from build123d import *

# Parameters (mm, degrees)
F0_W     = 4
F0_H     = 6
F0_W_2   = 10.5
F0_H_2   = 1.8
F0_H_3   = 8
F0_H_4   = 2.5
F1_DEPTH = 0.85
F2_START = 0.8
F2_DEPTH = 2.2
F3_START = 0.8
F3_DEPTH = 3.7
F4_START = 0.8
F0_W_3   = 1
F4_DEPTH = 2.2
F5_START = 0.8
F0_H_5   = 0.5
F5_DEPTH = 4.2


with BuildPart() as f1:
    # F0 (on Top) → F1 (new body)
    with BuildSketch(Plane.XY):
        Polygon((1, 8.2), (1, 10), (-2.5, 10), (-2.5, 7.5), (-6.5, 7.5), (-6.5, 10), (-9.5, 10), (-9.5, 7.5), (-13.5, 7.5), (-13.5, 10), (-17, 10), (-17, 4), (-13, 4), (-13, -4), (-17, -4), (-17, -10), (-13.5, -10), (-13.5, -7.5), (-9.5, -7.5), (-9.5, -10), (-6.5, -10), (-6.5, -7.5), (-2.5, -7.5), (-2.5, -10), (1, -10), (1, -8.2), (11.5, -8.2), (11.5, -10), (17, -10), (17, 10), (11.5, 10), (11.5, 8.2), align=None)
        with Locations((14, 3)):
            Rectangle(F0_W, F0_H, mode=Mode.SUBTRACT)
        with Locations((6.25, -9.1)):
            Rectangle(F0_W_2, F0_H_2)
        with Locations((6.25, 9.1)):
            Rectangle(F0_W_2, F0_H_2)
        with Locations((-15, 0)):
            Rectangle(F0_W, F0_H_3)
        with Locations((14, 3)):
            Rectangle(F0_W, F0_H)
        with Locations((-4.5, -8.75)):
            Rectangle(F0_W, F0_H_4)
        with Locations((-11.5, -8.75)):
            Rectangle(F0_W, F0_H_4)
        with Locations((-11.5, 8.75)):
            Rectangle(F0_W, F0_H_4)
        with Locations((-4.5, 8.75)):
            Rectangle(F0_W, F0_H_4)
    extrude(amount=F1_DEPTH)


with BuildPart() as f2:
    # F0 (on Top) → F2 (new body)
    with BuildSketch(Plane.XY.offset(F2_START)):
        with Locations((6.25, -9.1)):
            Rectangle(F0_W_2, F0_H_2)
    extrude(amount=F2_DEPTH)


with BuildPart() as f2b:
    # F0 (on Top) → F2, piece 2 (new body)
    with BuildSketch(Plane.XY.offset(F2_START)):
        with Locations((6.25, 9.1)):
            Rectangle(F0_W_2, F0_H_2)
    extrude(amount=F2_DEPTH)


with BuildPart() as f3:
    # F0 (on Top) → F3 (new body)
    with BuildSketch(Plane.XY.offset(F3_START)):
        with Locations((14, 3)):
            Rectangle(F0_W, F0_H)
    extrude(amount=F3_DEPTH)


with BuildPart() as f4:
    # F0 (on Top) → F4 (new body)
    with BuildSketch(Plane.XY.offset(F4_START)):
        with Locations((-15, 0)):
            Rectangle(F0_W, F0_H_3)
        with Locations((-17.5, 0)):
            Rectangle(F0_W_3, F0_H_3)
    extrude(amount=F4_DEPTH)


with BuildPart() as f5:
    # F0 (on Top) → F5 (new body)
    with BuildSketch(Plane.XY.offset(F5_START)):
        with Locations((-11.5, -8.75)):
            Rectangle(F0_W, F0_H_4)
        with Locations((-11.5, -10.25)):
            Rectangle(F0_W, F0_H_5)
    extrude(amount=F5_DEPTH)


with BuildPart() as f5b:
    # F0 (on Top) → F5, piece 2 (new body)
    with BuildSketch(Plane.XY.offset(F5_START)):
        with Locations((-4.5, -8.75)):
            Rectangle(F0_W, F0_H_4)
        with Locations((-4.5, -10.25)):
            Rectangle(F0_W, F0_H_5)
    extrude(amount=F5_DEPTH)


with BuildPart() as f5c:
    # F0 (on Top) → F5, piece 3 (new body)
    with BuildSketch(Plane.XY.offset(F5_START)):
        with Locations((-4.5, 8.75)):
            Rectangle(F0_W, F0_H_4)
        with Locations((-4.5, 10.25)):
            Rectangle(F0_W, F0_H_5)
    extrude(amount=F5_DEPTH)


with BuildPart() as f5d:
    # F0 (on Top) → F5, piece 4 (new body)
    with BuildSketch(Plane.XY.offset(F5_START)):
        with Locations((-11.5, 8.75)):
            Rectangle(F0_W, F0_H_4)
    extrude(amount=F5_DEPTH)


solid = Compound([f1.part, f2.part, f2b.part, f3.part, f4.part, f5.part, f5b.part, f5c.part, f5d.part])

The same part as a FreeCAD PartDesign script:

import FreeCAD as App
import Part
import Sketcher
Q = App.Units.Quantity


def add_polygon(sketch, points):
    """Adds a closed chain of lines whose ends are joined by coincident constraints."""
    first, n = sketch.GeometryCount, len(points)
    for a, b in zip(points, points[1:] + points[:1]):
        sketch.addGeometry(Part.LineSegment(App.Vector(*a, 0), App.Vector(*b, 0)), False)
    for i in range(n):
        sketch.addConstraint(Sketcher.Constraint("Coincident", first + i, 2, first + (i + 1) % n, 1))

doc = App.newDocument("Part")
params = doc.addObject("Spreadsheet::Sheet", "Params")
for row, (alias, value) in enumerate([
    ("sketch1_width", "34 mm"),
    ("sketch1_height", "20 mm"),
    ("pad1_length", "0.85 mm"),
    ("sketch2_width", "10.5 mm"),
    ("sketch2_height", "1.8 mm"),
    ("pad2_length", "2.2 mm"),
    ("sketch3_width", "10.5 mm"),
    ("sketch3_height", "1.8 mm"),
    ("pad3_length", "2.2 mm"),
    ("sketch4_width", "4 mm"),
    ("sketch4_height", "6 mm"),
    ("pad4_length", "3.7 mm"),
    ("sketch5_width", "5 mm"),
    ("sketch5_height", "8 mm"),
    ("pad5_length", "2.2 mm"),
    ("sketch6_width", "4 mm"),
    ("sketch6_height", "3 mm"),
    ("pad6_length", "4.2 mm"),
    ("sketch7_width", "4 mm"),
    ("sketch7_height", "3 mm"),
    ("pad7_length", "4.2 mm"),
    ("sketch8_width", "4 mm"),
    ("sketch8_height", "3 mm"),
    ("pad8_length", "4.2 mm"),
    ("sketch9_width", "4 mm"),
    ("sketch9_height", "2.5 mm"),
    ("pad9_length", "4.2 mm"),
], start=1):
    params.set(f"A{row}", alias)
    params.set(f"B{row}", "=" + value)
    params.setAlias(f"B{row}", alias)

body = doc.addObject("PartDesign::Body", "Body")

sketch1 = doc.addObject("Sketcher::SketchObject", "Sketch")
body.addObject(sketch1)
sketch1.AttachmentSupport = (doc.XY_Plane, [""])
sketch1.MapMode = "FlatFace"
add_polygon(sketch1, [(-17, 10), (-17, -10), (17, -10), (17, 10)])
sketch1.addConstraint(Sketcher.Constraint("Vertical", 0))
sketch1.addConstraint(Sketcher.Constraint("Horizontal", 1))
sketch1.addConstraint(Sketcher.Constraint("Vertical", 2))
sketch1.addConstraint(Sketcher.Constraint("Horizontal", 3))
sketch1.addConstraint(Sketcher.Constraint("Symmetric", 0, 2, 2, 2, -1, 1))
sketch1.addConstraint(Sketcher.Constraint("DistanceX", 1, 1, 1, 2, Q("34 mm")))
sketch1.addConstraint(Sketcher.Constraint("DistanceY", 0, 2, 0, 1, Q("20 mm")))
sketch1.setExpression("Constraints[9]", "Params.sketch1_width")
sketch1.setExpression("Constraints[10]", "Params.sketch1_height")
pad1 = doc.addObject("PartDesign::Pad", "Pad")
body.addObject(pad1)
pad1.Profile = sketch1
pad1.setExpression("Length", "Params.pad1_length")
body2 = doc.addObject("PartDesign::Body", "Body001")

sketch2 = doc.addObject("Sketcher::SketchObject", "Sketch001")
body2.addObject(sketch2)
sketch2.AttachmentSupport = (doc.getObject("XY_Plane001"), [""])
sketch2.MapMode = "FlatFace"
sketch2.AttachmentOffset = App.Placement(App.Vector(0, 0, 0.8), App.Rotation())
add_polygon(sketch2, [(1, -8.2), (1, -10), (11.5, -10), (11.5, -8.2)])
sketch2.addConstraint(Sketcher.Constraint("Vertical", 0))
sketch2.addConstraint(Sketcher.Constraint("Horizontal", 1))
sketch2.addConstraint(Sketcher.Constraint("Vertical", 2))
sketch2.addConstraint(Sketcher.Constraint("Horizontal", 3))
sketch2.addConstraint(Sketcher.Constraint("DistanceX", 1, 1, 1, 2, Q("10.5 mm")))
sketch2.addConstraint(Sketcher.Constraint("DistanceY", 0, 2, 0, 1, Q("1.8 mm")))
sketch2.addConstraint(Sketcher.Constraint("DistanceX", -1, 1, 0, 2, Q("1 mm")))
sketch2.addConstraint(Sketcher.Constraint("DistanceY", 0, 2, -1, 1, Q("10 mm")))
sketch2.setExpression("Constraints[8]", "Params.sketch2_width")
sketch2.setExpression("Constraints[9]", "Params.sketch2_height")
pad2 = doc.addObject("PartDesign::Pad", "Pad001")
body2.addObject(pad2)
pad2.Profile = sketch2
pad2.setExpression("Length", "Params.pad2_length")
body3 = doc.addObject("PartDesign::Body", "Body002")

sketch3 = doc.addObject("Sketcher::SketchObject", "Sketch002")
body3.addObject(sketch3)
sketch3.AttachmentSupport = (doc.getObject("XY_Plane002"), [""])
sketch3.MapMode = "FlatFace"
sketch3.AttachmentOffset = App.Placement(App.Vector(0, 0, 0.8), App.Rotation())
add_polygon(sketch3, [(1, 10), (1, 8.2), (11.5, 8.2), (11.5, 10)])
sketch3.addConstraint(Sketcher.Constraint("Vertical", 0))
sketch3.addConstraint(Sketcher.Constraint("Horizontal", 1))
sketch3.addConstraint(Sketcher.Constraint("Vertical", 2))
sketch3.addConstraint(Sketcher.Constraint("Horizontal", 3))
sketch3.addConstraint(Sketcher.Constraint("DistanceX", 1, 1, 1, 2, Q("10.5 mm")))
sketch3.addConstraint(Sketcher.Constraint("DistanceY", 0, 2, 0, 1, Q("1.8 mm")))
sketch3.addConstraint(Sketcher.Constraint("DistanceX", -1, 1, 0, 2, Q("1 mm")))
sketch3.addConstraint(Sketcher.Constraint("DistanceY", -1, 1, 2, 2, Q("10 mm")))
sketch3.setExpression("Constraints[8]", "Params.sketch3_width")
sketch3.setExpression("Constraints[9]", "Params.sketch3_height")
pad3 = doc.addObject("PartDesign::Pad", "Pad002")
body3.addObject(pad3)
pad3.Profile = sketch3
pad3.setExpression("Length", "Params.pad3_length")
body4 = doc.addObject("PartDesign::Body", "Body003")

sketch4 = doc.addObject("Sketcher::SketchObject", "Sketch003")
body4.addObject(sketch4)
sketch4.AttachmentSupport = (doc.getObject("XY_Plane003"), [""])
sketch4.MapMode = "FlatFace"
sketch4.AttachmentOffset = App.Placement(App.Vector(0, 0, 0.8), App.Rotation())
add_polygon(sketch4, [(12, 6), (12, 0), (16, 0), (16, 6)])
sketch4.addConstraint(Sketcher.Constraint("Vertical", 0))
sketch4.addConstraint(Sketcher.Constraint("Horizontal", 1))
sketch4.addConstraint(Sketcher.Constraint("Vertical", 2))
sketch4.addConstraint(Sketcher.Constraint("Horizontal", 3))
sketch4.addConstraint(Sketcher.Constraint("PointOnObject", 0, 2, -1))
sketch4.addConstraint(Sketcher.Constraint("DistanceX", 1, 1, 1, 2, Q("4 mm")))
sketch4.addConstraint(Sketcher.Constraint("DistanceY", 0, 2, 0, 1, Q("6 mm")))
sketch4.addConstraint(Sketcher.Constraint("DistanceX", -1, 1, 0, 2, Q("12 mm")))
sketch4.setExpression("Constraints[9]", "Params.sketch4_width")
sketch4.setExpression("Constraints[10]", "Params.sketch4_height")
pad4 = doc.addObject("PartDesign::Pad", "Pad003")
body4.addObject(pad4)
pad4.Profile = sketch4
pad4.setExpression("Length", "Params.pad4_length")
body5 = doc.addObject("PartDesign::Body", "Body004")

sketch5 = doc.addObject("Sketcher::SketchObject", "Sketch004")
body5.addObject(sketch5)
sketch5.AttachmentSupport = (doc.getObject("XY_Plane004"), [""])
sketch5.MapMode = "FlatFace"
sketch5.AttachmentOffset = App.Placement(App.Vector(0, 0, 0.8), App.Rotation())
add_polygon(sketch5, [(-13, -4), (-13, 4), (-18, 4), (-18, -4)])
sketch5.addConstraint(Sketcher.Constraint("Vertical", 0))
sketch5.addConstraint(Sketcher.Constraint("Horizontal", 1))
sketch5.addConstraint(Sketcher.Constraint("Vertical", 2))
sketch5.addConstraint(Sketcher.Constraint("Horizontal", 3))
sketch5.addConstraint(Sketcher.Constraint("DistanceX", 1, 2, 1, 1, Q("5 mm")))
sketch5.addConstraint(Sketcher.Constraint("DistanceY", 0, 1, 0, 2, Q("8 mm")))
sketch5.addConstraint(Sketcher.Constraint("DistanceX", 0, 2, -1, 1, Q("13 mm")))
sketch5.addConstraint(Sketcher.Constraint("DistanceY", -1, 1, 0, 2, Q("4 mm")))
sketch5.setExpression("Constraints[8]", "Params.sketch5_width")
sketch5.setExpression("Constraints[9]", "Params.sketch5_height")
pad5 = doc.addObject("PartDesign::Pad", "Pad004")
body5.addObject(pad5)
pad5.Profile = sketch5
pad5.setExpression("Length", "Params.pad5_length")
body6 = doc.addObject("PartDesign::Body", "Body005")

sketch6 = doc.addObject("Sketcher::SketchObject", "Sketch005")
body6.addObject(sketch6)
sketch6.AttachmentSupport = (doc.getObject("XY_Plane005"), [""])
sketch6.MapMode = "FlatFace"
sketch6.AttachmentOffset = App.Placement(App.Vector(0, 0, 0.8), App.Rotation())
add_polygon(sketch6, [(-13.5, -7.5), (-13.5, -10.5), (-9.5, -10.5), (-9.5, -7.5)])
sketch6.addConstraint(Sketcher.Constraint("Vertical", 0))
sketch6.addConstraint(Sketcher.Constraint("Horizontal", 1))
sketch6.addConstraint(Sketcher.Constraint("Vertical", 2))
sketch6.addConstraint(Sketcher.Constraint("Horizontal", 3))
sketch6.addConstraint(Sketcher.Constraint("DistanceX", 1, 1, 1, 2, Q("4 mm")))
sketch6.addConstraint(Sketcher.Constraint("DistanceY", 0, 2, 0, 1, Q("3 mm")))
sketch6.addConstraint(Sketcher.Constraint("DistanceX", 0, 2, -1, 1, Q("13.5 mm")))
sketch6.addConstraint(Sketcher.Constraint("DistanceY", 0, 2, -1, 1, Q("10.5 mm")))
sketch6.setExpression("Constraints[8]", "Params.sketch6_width")
sketch6.setExpression("Constraints[9]", "Params.sketch6_height")
pad6 = doc.addObject("PartDesign::Pad", "Pad005")
body6.addObject(pad6)
pad6.Profile = sketch6
pad6.setExpression("Length", "Params.pad6_length")
body7 = doc.addObject("PartDesign::Body", "Body006")

sketch7 = doc.addObject("Sketcher::SketchObject", "Sketch006")
body7.addObject(sketch7)
sketch7.AttachmentSupport = (doc.getObject("XY_Plane006"), [""])
sketch7.MapMode = "FlatFace"
sketch7.AttachmentOffset = App.Placement(App.Vector(0, 0, 0.8), App.Rotation())
add_polygon(sketch7, [(-6.5, -7.5), (-6.5, -10.5), (-2.5, -10.5), (-2.5, -7.5)])
sketch7.addConstraint(Sketcher.Constraint("Vertical", 0))
sketch7.addConstraint(Sketcher.Constraint("Horizontal", 1))
sketch7.addConstraint(Sketcher.Constraint("Vertical", 2))
sketch7.addConstraint(Sketcher.Constraint("Horizontal", 3))
sketch7.addConstraint(Sketcher.Constraint("DistanceX", 1, 1, 1, 2, Q("4 mm")))
sketch7.addConstraint(Sketcher.Constraint("DistanceY", 0, 2, 0, 1, Q("3 mm")))
sketch7.addConstraint(Sketcher.Constraint("DistanceX", 0, 2, -1, 1, Q("6.5 mm")))
sketch7.addConstraint(Sketcher.Constraint("DistanceY", 0, 2, -1, 1, Q("10.5 mm")))
sketch7.setExpression("Constraints[8]", "Params.sketch7_width")
sketch7.setExpression("Constraints[9]", "Params.sketch7_height")
pad7 = doc.addObject("PartDesign::Pad", "Pad006")
body7.addObject(pad7)
pad7.Profile = sketch7
pad7.setExpression("Length", "Params.pad7_length")
body8 = doc.addObject("PartDesign::Body", "Body007")

sketch8 = doc.addObject("Sketcher::SketchObject", "Sketch007")
body8.addObject(sketch8)
sketch8.AttachmentSupport = (doc.getObject("XY_Plane007"), [""])
sketch8.MapMode = "FlatFace"
sketch8.AttachmentOffset = App.Placement(App.Vector(0, 0, 0.8), App.Rotation())
add_polygon(sketch8, [(-6.5, 7.5), (-2.5, 7.5), (-2.5, 10.5), (-6.5, 10.5)])
sketch8.addConstraint(Sketcher.Constraint("Horizontal", 0))
sketch8.addConstraint(Sketcher.Constraint("Vertical", 1))
sketch8.addConstraint(Sketcher.Constraint("Horizontal", 2))
sketch8.addConstraint(Sketcher.Constraint("Vertical", 3))
sketch8.addConstraint(Sketcher.Constraint("DistanceX", 0, 1, 0, 2, Q("4 mm")))
sketch8.addConstraint(Sketcher.Constraint("DistanceY", 1, 1, 1, 2, Q("3 mm")))
sketch8.addConstraint(Sketcher.Constraint("DistanceX", 0, 2, -1, 1, Q("2.5 mm")))
sketch8.addConstraint(Sketcher.Constraint("DistanceY", -1, 1, 0, 2, Q("7.5 mm")))
sketch8.setExpression("Constraints[8]", "Params.sketch8_width")
sketch8.setExpression("Constraints[9]", "Params.sketch8_height")
pad8 = doc.addObject("PartDesign::Pad", "Pad007")
body8.addObject(pad8)
pad8.Profile = sketch8
pad8.setExpression("Length", "Params.pad8_length")
body9 = doc.addObject("PartDesign::Body", "Body008")

sketch9 = doc.addObject("Sketcher::SketchObject", "Sketch008")
body9.addObject(sketch9)
sketch9.AttachmentSupport = (doc.getObject("XY_Plane008"), [""])
sketch9.MapMode = "FlatFace"
sketch9.AttachmentOffset = App.Placement(App.Vector(0, 0, 0.8), App.Rotation())
add_polygon(sketch9, [(-13.5, 10), (-13.5, 7.5), (-9.5, 7.5), (-9.5, 10)])
sketch9.addConstraint(Sketcher.Constraint("Vertical", 0))
sketch9.addConstraint(Sketcher.Constraint("Horizontal", 1))
sketch9.addConstraint(Sketcher.Constraint("Vertical", 2))
sketch9.addConstraint(Sketcher.Constraint("Horizontal", 3))
sketch9.addConstraint(Sketcher.Constraint("DistanceX", 1, 1, 1, 2, Q("4 mm")))
sketch9.addConstraint(Sketcher.Constraint("DistanceY", 0, 2, 0, 1, Q("2.5 mm")))
sketch9.addConstraint(Sketcher.Constraint("DistanceY", -1, 1, 2, 2, Q("10 mm")))
sketch9.addConstraint(Sketcher.Constraint("DistanceX", 0, 2, -1, 1, Q("13.5 mm")))
sketch9.setExpression("Constraints[8]", "Params.sketch9_width")
sketch9.setExpression("Constraints[9]", "Params.sketch9_height")
pad9 = doc.addObject("PartDesign::Pad", "Pad008")
body9.addObject(pad9)
pad9.Profile = sketch9
pad9.setExpression("Length", "Params.pad9_length")

doc.recompute()
